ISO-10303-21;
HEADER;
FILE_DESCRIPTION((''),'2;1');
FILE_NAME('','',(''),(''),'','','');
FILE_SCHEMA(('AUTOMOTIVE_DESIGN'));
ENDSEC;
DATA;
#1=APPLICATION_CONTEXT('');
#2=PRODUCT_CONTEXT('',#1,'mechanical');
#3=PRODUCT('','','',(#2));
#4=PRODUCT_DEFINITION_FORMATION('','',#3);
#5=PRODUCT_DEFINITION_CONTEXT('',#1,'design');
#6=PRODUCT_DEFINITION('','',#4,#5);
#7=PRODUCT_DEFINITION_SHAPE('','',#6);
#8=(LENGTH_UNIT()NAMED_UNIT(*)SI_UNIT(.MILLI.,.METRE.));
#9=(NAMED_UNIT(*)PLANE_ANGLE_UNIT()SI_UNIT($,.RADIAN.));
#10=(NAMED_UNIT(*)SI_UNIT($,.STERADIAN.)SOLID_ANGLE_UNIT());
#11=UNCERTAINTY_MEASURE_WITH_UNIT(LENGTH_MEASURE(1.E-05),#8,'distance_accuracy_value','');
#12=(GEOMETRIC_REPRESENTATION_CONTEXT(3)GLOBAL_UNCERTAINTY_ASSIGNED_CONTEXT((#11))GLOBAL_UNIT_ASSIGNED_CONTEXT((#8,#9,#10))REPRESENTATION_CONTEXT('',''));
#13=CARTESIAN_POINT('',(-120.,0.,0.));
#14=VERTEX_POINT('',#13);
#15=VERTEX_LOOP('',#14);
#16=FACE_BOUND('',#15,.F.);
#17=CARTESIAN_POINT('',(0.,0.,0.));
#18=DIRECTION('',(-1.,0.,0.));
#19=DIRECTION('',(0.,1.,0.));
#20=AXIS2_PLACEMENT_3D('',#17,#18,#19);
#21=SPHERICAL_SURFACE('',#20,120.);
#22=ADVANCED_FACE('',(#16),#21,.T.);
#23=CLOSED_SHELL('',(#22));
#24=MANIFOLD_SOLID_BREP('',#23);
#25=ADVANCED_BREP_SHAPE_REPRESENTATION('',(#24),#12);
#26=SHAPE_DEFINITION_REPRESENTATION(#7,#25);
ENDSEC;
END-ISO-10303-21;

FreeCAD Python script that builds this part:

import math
import FreeCAD as App
import Part
import Sketcher
Q = App.Units.Quantity

doc = App.newDocument("Part")
body = doc.addObject("PartDesign::Body", "Body")

sketch1 = body.newObject("Sketcher::SketchObject", "Sketch")
sketch1.AttachmentSupport = (doc.getObject("XY_Plane"), [""])
sketch1.MapMode = "FlatFace"
sketch1.addGeometry([
    Part.LineSegment(App.Vector(-120, 0, 0), App.Vector(120, 0, 0)),
    Part.ArcOfCircle(Part.Circle(App.Vector(0, 0, 0), App.Vector(0, 0, 1), 120), math.radians(0), math.radians(180)),
], False)
sketch1.addConstraint([
    Sketcher.Constraint("Coincident", 0, 1, 1, 2),
    Sketcher.Constraint("Coincident", 1, 1, 0, 2),
    Sketcher.Constraint("Horizontal", 0),
    Sketcher.Constraint("Coincident", 1, 3, -1, 1),
    Sketcher.Constraint("PointOnObject", 0, 1, -1),
    Sketcher.Constraint("Radius", 1, Q("120 mm")),
])
revolution = body.newObject("PartDesign::Revolution", "Revolution")
revolution.Profile = sketch1
revolution.ReferenceAxis = (sketch1, ["H_Axis"])
revolution.Angle = 360

doc.recompute()
